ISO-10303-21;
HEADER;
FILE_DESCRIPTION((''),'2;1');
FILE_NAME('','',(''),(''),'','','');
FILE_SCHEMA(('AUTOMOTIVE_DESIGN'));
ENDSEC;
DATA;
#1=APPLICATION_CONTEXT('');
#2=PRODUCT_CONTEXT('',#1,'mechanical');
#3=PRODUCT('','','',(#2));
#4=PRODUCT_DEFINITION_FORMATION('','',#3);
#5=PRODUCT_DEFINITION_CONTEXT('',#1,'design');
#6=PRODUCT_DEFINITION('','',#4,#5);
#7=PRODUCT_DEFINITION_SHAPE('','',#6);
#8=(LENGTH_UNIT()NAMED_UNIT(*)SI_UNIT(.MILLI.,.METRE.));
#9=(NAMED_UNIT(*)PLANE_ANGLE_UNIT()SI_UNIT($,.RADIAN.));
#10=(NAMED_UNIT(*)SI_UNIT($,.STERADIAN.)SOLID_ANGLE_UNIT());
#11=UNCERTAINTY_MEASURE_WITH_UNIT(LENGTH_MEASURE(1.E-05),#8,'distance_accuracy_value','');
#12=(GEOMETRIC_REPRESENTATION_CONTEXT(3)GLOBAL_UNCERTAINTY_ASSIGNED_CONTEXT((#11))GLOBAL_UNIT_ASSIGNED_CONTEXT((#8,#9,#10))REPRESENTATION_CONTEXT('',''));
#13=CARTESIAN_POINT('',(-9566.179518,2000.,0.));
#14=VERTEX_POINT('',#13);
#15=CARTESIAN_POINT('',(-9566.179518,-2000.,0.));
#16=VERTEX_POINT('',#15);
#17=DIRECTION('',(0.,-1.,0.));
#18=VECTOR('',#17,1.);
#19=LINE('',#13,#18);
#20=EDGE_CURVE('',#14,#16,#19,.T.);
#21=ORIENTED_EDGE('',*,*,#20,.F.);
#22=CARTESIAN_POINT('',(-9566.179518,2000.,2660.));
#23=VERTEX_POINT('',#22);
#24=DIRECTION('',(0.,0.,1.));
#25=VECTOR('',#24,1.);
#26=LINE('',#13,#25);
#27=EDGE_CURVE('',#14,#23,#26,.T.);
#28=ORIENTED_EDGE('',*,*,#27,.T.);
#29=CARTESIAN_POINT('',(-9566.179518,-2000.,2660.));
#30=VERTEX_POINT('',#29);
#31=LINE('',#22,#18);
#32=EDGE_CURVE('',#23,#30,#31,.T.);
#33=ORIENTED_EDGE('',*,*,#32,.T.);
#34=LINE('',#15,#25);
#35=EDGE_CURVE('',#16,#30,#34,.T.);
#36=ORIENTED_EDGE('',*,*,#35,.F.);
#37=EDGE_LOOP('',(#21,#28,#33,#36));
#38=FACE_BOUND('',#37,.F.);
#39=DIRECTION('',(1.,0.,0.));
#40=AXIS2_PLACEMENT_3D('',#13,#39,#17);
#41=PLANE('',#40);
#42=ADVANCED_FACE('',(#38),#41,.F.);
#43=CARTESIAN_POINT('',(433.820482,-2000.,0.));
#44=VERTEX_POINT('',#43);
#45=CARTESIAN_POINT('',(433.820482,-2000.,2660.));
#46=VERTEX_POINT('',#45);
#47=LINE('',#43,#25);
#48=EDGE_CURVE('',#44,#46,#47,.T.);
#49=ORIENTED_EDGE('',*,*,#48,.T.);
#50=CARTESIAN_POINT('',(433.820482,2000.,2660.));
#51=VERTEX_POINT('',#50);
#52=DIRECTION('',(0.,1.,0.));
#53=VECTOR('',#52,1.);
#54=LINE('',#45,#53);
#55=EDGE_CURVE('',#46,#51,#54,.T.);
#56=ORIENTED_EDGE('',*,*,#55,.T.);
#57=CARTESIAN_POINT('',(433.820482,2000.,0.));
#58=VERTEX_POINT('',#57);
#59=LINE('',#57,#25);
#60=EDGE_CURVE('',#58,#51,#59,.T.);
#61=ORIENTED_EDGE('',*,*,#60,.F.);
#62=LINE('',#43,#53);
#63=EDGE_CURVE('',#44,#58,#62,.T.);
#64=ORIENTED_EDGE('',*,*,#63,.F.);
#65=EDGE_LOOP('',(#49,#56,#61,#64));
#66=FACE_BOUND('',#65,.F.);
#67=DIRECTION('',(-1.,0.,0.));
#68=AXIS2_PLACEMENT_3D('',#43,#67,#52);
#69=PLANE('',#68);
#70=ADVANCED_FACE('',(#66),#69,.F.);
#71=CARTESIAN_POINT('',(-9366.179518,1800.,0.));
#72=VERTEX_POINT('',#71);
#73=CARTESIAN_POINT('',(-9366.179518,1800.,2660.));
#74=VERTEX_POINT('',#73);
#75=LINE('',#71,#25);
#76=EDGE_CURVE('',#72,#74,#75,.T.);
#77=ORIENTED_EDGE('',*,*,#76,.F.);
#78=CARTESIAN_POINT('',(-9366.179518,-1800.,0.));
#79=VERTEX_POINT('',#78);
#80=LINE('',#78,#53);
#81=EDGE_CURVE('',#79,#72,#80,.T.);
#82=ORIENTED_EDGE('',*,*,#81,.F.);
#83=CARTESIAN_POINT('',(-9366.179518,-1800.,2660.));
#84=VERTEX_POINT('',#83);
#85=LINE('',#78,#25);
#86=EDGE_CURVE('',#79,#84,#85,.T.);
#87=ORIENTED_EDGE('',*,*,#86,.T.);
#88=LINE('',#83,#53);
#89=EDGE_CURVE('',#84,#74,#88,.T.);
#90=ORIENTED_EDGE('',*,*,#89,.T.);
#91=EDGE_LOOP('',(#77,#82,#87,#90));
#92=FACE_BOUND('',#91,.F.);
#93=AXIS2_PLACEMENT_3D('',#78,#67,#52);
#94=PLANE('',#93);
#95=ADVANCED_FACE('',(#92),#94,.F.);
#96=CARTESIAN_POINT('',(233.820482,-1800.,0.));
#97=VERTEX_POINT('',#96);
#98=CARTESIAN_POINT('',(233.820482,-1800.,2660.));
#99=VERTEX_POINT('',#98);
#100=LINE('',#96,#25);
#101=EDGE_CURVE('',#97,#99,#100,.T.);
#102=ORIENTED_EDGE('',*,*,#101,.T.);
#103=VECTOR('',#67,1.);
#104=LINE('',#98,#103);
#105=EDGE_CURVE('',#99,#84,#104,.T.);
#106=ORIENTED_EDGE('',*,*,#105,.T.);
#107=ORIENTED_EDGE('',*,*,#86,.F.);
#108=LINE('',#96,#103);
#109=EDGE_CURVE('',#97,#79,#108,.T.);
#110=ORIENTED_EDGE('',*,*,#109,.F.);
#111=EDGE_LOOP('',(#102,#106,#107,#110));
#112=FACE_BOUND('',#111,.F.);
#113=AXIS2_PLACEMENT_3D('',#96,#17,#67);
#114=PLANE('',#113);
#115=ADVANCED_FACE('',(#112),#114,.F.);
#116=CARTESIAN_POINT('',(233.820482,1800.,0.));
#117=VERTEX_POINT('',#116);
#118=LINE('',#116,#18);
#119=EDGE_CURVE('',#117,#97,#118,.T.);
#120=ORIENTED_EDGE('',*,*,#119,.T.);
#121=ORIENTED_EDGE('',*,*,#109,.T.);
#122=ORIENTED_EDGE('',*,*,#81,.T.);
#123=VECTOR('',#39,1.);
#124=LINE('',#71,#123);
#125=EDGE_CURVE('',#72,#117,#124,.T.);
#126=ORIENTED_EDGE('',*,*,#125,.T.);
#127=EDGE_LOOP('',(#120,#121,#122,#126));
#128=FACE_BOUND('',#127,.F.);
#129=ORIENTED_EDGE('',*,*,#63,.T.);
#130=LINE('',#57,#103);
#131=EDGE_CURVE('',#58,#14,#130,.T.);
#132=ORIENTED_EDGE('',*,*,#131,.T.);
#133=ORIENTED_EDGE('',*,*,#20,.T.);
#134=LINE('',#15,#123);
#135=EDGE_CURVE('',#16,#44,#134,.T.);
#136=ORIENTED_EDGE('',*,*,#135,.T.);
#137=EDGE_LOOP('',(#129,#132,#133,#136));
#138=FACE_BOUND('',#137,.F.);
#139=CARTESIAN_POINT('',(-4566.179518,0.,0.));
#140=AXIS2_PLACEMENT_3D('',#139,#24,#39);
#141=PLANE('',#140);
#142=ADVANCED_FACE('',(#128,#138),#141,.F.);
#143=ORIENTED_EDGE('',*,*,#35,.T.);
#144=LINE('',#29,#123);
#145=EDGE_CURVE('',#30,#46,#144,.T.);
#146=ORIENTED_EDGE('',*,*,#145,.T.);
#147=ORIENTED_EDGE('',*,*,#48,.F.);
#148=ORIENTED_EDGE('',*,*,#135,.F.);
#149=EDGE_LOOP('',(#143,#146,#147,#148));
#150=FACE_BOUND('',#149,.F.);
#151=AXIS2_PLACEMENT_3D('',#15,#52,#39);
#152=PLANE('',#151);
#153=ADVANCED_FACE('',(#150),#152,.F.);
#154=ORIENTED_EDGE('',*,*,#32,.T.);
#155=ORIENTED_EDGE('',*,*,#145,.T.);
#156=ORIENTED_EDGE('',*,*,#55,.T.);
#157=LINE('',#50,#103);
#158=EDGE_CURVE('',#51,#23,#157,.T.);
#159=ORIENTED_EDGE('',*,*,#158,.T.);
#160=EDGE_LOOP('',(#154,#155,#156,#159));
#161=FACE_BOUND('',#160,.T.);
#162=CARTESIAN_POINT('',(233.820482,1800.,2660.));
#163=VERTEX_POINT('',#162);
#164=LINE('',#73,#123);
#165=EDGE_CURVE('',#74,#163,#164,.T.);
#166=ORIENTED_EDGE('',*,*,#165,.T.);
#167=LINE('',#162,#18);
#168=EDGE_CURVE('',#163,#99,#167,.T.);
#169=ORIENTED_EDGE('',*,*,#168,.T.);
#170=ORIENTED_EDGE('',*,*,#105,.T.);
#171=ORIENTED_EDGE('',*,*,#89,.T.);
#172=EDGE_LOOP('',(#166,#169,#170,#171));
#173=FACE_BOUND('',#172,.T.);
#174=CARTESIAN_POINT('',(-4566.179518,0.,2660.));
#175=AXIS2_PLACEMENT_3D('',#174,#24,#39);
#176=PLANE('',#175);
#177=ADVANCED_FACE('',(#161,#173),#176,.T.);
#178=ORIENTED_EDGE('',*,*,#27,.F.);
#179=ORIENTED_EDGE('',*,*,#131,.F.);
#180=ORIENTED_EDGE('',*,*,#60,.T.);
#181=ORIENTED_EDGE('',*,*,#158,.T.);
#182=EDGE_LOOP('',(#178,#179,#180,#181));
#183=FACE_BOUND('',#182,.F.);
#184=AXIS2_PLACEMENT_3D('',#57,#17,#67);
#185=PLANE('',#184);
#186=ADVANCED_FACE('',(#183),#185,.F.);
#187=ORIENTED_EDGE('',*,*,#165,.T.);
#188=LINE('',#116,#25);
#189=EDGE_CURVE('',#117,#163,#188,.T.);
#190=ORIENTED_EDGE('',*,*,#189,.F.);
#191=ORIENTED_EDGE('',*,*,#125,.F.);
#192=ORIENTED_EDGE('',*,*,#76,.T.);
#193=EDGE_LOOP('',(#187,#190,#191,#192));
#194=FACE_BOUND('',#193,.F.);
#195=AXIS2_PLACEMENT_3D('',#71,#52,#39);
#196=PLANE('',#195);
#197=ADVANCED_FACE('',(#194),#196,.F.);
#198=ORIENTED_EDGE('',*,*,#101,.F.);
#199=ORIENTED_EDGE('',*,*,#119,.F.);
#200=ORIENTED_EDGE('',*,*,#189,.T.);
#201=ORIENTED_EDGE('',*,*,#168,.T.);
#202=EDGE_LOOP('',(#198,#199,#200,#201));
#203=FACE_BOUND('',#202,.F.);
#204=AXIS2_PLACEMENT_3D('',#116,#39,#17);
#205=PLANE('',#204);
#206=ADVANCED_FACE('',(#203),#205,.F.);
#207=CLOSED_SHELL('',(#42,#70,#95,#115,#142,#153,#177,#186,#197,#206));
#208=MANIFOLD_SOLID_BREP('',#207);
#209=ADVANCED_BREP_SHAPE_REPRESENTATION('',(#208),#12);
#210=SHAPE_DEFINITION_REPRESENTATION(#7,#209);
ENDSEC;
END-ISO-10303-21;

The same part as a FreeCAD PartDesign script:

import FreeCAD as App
import Part
import Sketcher
from FreeCAD import Vector

doc = App.newDocument("Part")
params = doc.addObject("Spreadsheet::Sheet", "Params")
for row, (alias, value) in enumerate([
    ("sketch1_width", "10000 mm"),
    ("sketch1_width2", "9600 mm"),
    ("sketch1_height", "4000 mm"),
    ("sketch1_height2", "3600 mm"),
    ("pad1_length", "2660 mm"),
], start=1):
    params.set(f"A{row}", alias)
    params.set(f"B{row}", "=" + value)
    params.setAlias(f"B{row}", alias)

body = doc.addObject("PartDesign::Body", "Body")

# Sketch on XY plane
sketch1 = doc.addObject("Sketcher::SketchObject", "Sketch")
body.addObject(sketch1)
sketch1.AttachmentSupport = (doc.XY_Plane, [""])
sketch1.MapMode = "FlatFace"
sketch1.addGeometry([
    Part.LineSegment(Vector(-9566, -2000, 0), Vector(434, -2000, 0)),  # 0
    Part.LineSegment(Vector(434, -2000, 0), Vector(434, 2000, 0)),  # 1
    Part.LineSegment(Vector(434, 2000, 0), Vector(-9566, 2000, 0)),  # 2
    Part.LineSegment(Vector(-9566, 2000, 0), Vector(-9566, -2000, 0)),  # 3
    Part.LineSegment(Vector(234, -1800, 0), Vector(-9366, -1800, 0)),  # 4
    Part.LineSegment(Vector(-9366, -1800, 0), Vector(-9366, 1800, 0)),  # 5
    Part.LineSegment(Vector(-9366, 1800, 0), Vector(234, 1800, 0)),  # 6
    Part.LineSegment(Vector(234, 1800, 0), Vector(234, -1800, 0)),  # 7
], False)
sketch1.addConstraint([
    Sketcher.Constraint("Coincident", 0, 2, 1, 1),
    Sketcher.Constraint("Coincident", 1, 2, 2, 1),
    Sketcher.Constraint("Coincident", 2, 2, 3, 1),
    Sketcher.Constraint("Coincident", 3, 2, 0, 1),
    Sketcher.Constraint("Coincident", 4, 2, 5, 1),
    Sketcher.Constraint("Coincident", 5, 2, 6, 1),
    Sketcher.Constraint("Coincident", 6, 2, 7, 1),
    Sketcher.Constraint("Coincident", 7, 2, 4, 1),
    Sketcher.Constraint("Horizontal", 0),
    Sketcher.Constraint("Vertical", 1),
    Sketcher.Constraint("Horizontal", 2),
    Sketcher.Constraint("Vertical", 3),
    Sketcher.Constraint("Horizontal", 4),
    Sketcher.Constraint("Vertical", 5),
    Sketcher.Constraint("Horizontal", 6),
    Sketcher.Constraint("Vertical", 7),
    Sketcher.Constraint("DistanceX", 0, 1, 0, 2, 10000.0),
    Sketcher.Constraint("DistanceX", 4, 2, 4, 1, 9600.0),
    Sketcher.Constraint("DistanceY", 1, 1, 1, 2, 4000.0),
    Sketcher.Constraint("DistanceY", 5, 1, 5, 2, 3600.0),
    Sketcher.Constraint("DistanceY", 0, 2, -1, 1, 2000.0),
    Sketcher.Constraint("DistanceY", 4, 2, -1, 1, 1800.0),
    Sketcher.Constraint("DistanceX", 3, 2, 4, 2, 200.0),
    Sketcher.Constraint("DistanceX", 2, 2, -1, 1, 9566.179518),
])
sketch1.setExpression("Constraints[16]", "Params.sketch1_width")
sketch1.setExpression("Constraints[17]", "Params.sketch1_width2")
sketch1.setExpression("Constraints[18]", "Params.sketch1_height")
sketch1.setExpression("Constraints[19]", "Params.sketch1_height2")
pad1 = doc.addObject("PartDesign::Pad", "Pad")
body.addObject(pad1)
pad1.Profile = sketch1
pad1.setExpression("Length", "Params.pad1_length")

doc.recompute()
